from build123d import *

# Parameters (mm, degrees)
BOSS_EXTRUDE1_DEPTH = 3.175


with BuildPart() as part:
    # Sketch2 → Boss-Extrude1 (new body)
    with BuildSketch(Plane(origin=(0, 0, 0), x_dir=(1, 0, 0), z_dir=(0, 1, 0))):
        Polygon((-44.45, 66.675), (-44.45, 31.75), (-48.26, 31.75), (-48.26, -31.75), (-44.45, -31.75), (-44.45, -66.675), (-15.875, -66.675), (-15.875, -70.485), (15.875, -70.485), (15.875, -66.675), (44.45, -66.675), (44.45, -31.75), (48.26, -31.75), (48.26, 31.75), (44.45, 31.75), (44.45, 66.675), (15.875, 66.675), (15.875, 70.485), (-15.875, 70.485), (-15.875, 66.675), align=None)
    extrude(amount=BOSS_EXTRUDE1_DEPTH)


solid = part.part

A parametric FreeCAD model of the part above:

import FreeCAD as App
import Part
import Sketcher
from FreeCAD import Vector
Q = App.Units.Quantity

doc = App.newDocument("Part")
body = doc.addObject("PartDesign::Body", "Body")

sketch1 = body.newObject("Sketcher::SketchObject", "Sketch")
sketch1.AttachmentSupport = (doc.getObject("XZ_Plane"), [""])
sketch1.MapMode = "FlatFace"
sketch1.addGeometry([
    Part.LineSegment(Vector(-44.45, -66.675, 0), Vector(-44.45, -31.75, 0)),
    Part.LineSegment(Vector(-44.45, -31.75, 0), Vector(-48.26, -31.75, 0)),
    Part.LineSegment(Vector(-48.26, -31.75, 0), Vector(-48.26, 31.75, 0)),
    Part.LineSegment(Vector(-48.26, 31.75, 0), Vector(-44.45, 31.75, 0)),
    Part.LineSegment(Vector(-44.45, 31.75, 0), Vector(-44.45, 66.675, 0)),
    Part.LineSegment(Vector(-44.45, 66.675, 0), Vector(-15.875, 66.675, 0)),
    Part.LineSegment(Vector(-15.875, 66.675, 0), Vector(-15.875, 70.485, 0)),
    Part.LineSegment(Vector(-15.875, 70.485, 0), Vector(15.875, 70.485, 0)),
    Part.LineSegment(Vector(15.875, 70.485, 0), Vector(15.875, 66.675, 0)),
    Part.LineSegment(Vector(15.875, 66.675, 0), Vector(44.45, 66.675, 0)),
    Part.LineSegment(Vector(44.45, 66.675, 0), Vector(44.45, 31.75, 0)),
    Part.LineSegment(Vector(44.45, 31.75, 0), Vector(48.26, 31.75, 0)),
    Part.LineSegment(Vector(48.26, 31.75, 0), Vector(48.26, -31.75, 0)),
    Part.LineSegment(Vector(48.26, -31.75, 0), Vector(44.45, -31.75, 0)),
    Part.LineSegment(Vector(44.45, -31.75, 0), Vector(44.45, -66.675, 0)),
    Part.LineSegment(Vector(44.45, -66.675, 0), Vector(15.875, -66.675, 0)),
    Part.LineSegment(Vector(15.875, -66.675, 0), Vector(15.875, -70.485, 0)),
    Part.LineSegment(Vector(15.875, -70.485, 0), Vector(-15.875, -70.485, 0)),
    Part.LineSegment(Vector(-15.875, -70.485, 0), Vector(-15.875, -66.675, 0)),
    Part.LineSegment(Vector(-15.875, -66.675, 0), Vector(-44.45, -66.675, 0)),
], False)
sketch1.addConstraint([
    Sketcher.Constraint("Coincident", 0, 2, 1, 1),
    Sketcher.Constraint("Coincident", 1, 2, 2, 1),
    Sketcher.Constraint("Coincident", 2, 2, 3, 1),
    Sketcher.Constraint("Coincident", 3, 2, 4, 1),
    Sketcher.Constraint("Coincident", 4, 2, 5, 1),
    Sketcher.Constraint("Coincident", 5, 2, 6, 1),
    Sketcher.Constraint("Coincident", 6, 2, 7, 1),
    Sketcher.Constraint("Coincident", 7, 2, 8, 1),
    Sketcher.Constraint("Coincident", 8, 2, 9, 1),
    Sketcher.Constraint("Coincident", 9, 2, 10, 1),
    Sketcher.Constraint("Coincident", 10, 2, 11, 1),
    Sketcher.Constraint("Coincident", 11, 2, 12, 1),
    Sketcher.Constraint("Coincident", 12, 2, 13, 1),
    Sketcher.Constraint("Coincident", 13, 2, 14, 1),
    Sketcher.Constraint("Coincident", 14, 2, 15, 1),
    Sketcher.Constraint("Coincident", 15, 2, 16, 1),
    Sketcher.Constraint("Coincident", 16, 2, 17, 1),
    Sketcher.Constraint("Coincident", 17, 2, 18, 1),
    Sketcher.Constraint("Coincident", 18, 2, 19, 1),
    Sketcher.Constraint("Coincident", 19, 2, 0, 1),
    Sketcher.Constraint("Vertical", 0),
    Sketcher.Constraint("Horizontal", 1),
    Sketcher.Constraint("Vertical", 2),
    Sketcher.Constraint("Horizontal", 3),
    Sketcher.Constraint("Vertical", 4),
    Sketcher.Constraint("Horizontal", 5),
    Sketcher.Constraint("Vertical", 6),
    Sketcher.Constraint("Horizontal", 7),
    Sketcher.Constraint("Vertical", 8),
    Sketcher.Constraint("Horizontal", 9),
    Sketcher.Constraint("Vertical", 10),
    Sketcher.Constraint("Horizontal", 11),
    Sketcher.Constraint("Vertical", 12),
    Sketcher.Constraint("Horizontal", 13),
    Sketcher.Constraint("Vertical", 14),
    Sketcher.Constraint("Horizontal", 15),
    Sketcher.Constraint("Vertical", 16),
    Sketcher.Constraint("Horizontal", 17),
    Sketcher.Constraint("Vertical", 18),
    Sketcher.Constraint("Horizontal", 19),
    Sketcher.Constraint("Symmetric", 0, 2, 10, 2, -1, 1),
    Sketcher.Constraint("Symmetric", 2, 2, 12, 2, -1, 1),
    Sketcher.Constraint("Symmetric", 4, 2, 14, 2, -1, 1),
    Sketcher.Constraint("Symmetric", 6, 2, 16, 2, -1, 1),
    Sketcher.Constraint("Symmetric", 8, 2, 18, 2, -1, 1),
    Sketcher.Constraint("Symmetric", 5, 2, 8, 2, -2),
    Sketcher.Constraint("Symmetric", 3, 2, 10, 2, -2),
    Sketcher.Constraint("Equal", 13, 6),
    Sketcher.Constraint("DistanceY", 2, 1, 2, 2, Q("2.5 in")),
    Sketcher.Constraint("DistanceX", 1, 2, 1, 1, Q("0.15 in")),
    Sketcher.Constraint("DistanceX", 7, 1, 7, 2, Q("1.25 in")),
    Sketcher.Constraint("DistanceX", 1, 2, -1, 1, Q("1.9 in")),
    Sketcher.Constraint("DistanceY", 0, 1, 0, 2, Q("1.375 in")),
])
pad1 = body.newObject("PartDesign::Pad", "Pad")
pad1.Profile = sketch1
pad1.Length = Q("0.125 in")
pad1.Reversed = True

doc.recompute()
